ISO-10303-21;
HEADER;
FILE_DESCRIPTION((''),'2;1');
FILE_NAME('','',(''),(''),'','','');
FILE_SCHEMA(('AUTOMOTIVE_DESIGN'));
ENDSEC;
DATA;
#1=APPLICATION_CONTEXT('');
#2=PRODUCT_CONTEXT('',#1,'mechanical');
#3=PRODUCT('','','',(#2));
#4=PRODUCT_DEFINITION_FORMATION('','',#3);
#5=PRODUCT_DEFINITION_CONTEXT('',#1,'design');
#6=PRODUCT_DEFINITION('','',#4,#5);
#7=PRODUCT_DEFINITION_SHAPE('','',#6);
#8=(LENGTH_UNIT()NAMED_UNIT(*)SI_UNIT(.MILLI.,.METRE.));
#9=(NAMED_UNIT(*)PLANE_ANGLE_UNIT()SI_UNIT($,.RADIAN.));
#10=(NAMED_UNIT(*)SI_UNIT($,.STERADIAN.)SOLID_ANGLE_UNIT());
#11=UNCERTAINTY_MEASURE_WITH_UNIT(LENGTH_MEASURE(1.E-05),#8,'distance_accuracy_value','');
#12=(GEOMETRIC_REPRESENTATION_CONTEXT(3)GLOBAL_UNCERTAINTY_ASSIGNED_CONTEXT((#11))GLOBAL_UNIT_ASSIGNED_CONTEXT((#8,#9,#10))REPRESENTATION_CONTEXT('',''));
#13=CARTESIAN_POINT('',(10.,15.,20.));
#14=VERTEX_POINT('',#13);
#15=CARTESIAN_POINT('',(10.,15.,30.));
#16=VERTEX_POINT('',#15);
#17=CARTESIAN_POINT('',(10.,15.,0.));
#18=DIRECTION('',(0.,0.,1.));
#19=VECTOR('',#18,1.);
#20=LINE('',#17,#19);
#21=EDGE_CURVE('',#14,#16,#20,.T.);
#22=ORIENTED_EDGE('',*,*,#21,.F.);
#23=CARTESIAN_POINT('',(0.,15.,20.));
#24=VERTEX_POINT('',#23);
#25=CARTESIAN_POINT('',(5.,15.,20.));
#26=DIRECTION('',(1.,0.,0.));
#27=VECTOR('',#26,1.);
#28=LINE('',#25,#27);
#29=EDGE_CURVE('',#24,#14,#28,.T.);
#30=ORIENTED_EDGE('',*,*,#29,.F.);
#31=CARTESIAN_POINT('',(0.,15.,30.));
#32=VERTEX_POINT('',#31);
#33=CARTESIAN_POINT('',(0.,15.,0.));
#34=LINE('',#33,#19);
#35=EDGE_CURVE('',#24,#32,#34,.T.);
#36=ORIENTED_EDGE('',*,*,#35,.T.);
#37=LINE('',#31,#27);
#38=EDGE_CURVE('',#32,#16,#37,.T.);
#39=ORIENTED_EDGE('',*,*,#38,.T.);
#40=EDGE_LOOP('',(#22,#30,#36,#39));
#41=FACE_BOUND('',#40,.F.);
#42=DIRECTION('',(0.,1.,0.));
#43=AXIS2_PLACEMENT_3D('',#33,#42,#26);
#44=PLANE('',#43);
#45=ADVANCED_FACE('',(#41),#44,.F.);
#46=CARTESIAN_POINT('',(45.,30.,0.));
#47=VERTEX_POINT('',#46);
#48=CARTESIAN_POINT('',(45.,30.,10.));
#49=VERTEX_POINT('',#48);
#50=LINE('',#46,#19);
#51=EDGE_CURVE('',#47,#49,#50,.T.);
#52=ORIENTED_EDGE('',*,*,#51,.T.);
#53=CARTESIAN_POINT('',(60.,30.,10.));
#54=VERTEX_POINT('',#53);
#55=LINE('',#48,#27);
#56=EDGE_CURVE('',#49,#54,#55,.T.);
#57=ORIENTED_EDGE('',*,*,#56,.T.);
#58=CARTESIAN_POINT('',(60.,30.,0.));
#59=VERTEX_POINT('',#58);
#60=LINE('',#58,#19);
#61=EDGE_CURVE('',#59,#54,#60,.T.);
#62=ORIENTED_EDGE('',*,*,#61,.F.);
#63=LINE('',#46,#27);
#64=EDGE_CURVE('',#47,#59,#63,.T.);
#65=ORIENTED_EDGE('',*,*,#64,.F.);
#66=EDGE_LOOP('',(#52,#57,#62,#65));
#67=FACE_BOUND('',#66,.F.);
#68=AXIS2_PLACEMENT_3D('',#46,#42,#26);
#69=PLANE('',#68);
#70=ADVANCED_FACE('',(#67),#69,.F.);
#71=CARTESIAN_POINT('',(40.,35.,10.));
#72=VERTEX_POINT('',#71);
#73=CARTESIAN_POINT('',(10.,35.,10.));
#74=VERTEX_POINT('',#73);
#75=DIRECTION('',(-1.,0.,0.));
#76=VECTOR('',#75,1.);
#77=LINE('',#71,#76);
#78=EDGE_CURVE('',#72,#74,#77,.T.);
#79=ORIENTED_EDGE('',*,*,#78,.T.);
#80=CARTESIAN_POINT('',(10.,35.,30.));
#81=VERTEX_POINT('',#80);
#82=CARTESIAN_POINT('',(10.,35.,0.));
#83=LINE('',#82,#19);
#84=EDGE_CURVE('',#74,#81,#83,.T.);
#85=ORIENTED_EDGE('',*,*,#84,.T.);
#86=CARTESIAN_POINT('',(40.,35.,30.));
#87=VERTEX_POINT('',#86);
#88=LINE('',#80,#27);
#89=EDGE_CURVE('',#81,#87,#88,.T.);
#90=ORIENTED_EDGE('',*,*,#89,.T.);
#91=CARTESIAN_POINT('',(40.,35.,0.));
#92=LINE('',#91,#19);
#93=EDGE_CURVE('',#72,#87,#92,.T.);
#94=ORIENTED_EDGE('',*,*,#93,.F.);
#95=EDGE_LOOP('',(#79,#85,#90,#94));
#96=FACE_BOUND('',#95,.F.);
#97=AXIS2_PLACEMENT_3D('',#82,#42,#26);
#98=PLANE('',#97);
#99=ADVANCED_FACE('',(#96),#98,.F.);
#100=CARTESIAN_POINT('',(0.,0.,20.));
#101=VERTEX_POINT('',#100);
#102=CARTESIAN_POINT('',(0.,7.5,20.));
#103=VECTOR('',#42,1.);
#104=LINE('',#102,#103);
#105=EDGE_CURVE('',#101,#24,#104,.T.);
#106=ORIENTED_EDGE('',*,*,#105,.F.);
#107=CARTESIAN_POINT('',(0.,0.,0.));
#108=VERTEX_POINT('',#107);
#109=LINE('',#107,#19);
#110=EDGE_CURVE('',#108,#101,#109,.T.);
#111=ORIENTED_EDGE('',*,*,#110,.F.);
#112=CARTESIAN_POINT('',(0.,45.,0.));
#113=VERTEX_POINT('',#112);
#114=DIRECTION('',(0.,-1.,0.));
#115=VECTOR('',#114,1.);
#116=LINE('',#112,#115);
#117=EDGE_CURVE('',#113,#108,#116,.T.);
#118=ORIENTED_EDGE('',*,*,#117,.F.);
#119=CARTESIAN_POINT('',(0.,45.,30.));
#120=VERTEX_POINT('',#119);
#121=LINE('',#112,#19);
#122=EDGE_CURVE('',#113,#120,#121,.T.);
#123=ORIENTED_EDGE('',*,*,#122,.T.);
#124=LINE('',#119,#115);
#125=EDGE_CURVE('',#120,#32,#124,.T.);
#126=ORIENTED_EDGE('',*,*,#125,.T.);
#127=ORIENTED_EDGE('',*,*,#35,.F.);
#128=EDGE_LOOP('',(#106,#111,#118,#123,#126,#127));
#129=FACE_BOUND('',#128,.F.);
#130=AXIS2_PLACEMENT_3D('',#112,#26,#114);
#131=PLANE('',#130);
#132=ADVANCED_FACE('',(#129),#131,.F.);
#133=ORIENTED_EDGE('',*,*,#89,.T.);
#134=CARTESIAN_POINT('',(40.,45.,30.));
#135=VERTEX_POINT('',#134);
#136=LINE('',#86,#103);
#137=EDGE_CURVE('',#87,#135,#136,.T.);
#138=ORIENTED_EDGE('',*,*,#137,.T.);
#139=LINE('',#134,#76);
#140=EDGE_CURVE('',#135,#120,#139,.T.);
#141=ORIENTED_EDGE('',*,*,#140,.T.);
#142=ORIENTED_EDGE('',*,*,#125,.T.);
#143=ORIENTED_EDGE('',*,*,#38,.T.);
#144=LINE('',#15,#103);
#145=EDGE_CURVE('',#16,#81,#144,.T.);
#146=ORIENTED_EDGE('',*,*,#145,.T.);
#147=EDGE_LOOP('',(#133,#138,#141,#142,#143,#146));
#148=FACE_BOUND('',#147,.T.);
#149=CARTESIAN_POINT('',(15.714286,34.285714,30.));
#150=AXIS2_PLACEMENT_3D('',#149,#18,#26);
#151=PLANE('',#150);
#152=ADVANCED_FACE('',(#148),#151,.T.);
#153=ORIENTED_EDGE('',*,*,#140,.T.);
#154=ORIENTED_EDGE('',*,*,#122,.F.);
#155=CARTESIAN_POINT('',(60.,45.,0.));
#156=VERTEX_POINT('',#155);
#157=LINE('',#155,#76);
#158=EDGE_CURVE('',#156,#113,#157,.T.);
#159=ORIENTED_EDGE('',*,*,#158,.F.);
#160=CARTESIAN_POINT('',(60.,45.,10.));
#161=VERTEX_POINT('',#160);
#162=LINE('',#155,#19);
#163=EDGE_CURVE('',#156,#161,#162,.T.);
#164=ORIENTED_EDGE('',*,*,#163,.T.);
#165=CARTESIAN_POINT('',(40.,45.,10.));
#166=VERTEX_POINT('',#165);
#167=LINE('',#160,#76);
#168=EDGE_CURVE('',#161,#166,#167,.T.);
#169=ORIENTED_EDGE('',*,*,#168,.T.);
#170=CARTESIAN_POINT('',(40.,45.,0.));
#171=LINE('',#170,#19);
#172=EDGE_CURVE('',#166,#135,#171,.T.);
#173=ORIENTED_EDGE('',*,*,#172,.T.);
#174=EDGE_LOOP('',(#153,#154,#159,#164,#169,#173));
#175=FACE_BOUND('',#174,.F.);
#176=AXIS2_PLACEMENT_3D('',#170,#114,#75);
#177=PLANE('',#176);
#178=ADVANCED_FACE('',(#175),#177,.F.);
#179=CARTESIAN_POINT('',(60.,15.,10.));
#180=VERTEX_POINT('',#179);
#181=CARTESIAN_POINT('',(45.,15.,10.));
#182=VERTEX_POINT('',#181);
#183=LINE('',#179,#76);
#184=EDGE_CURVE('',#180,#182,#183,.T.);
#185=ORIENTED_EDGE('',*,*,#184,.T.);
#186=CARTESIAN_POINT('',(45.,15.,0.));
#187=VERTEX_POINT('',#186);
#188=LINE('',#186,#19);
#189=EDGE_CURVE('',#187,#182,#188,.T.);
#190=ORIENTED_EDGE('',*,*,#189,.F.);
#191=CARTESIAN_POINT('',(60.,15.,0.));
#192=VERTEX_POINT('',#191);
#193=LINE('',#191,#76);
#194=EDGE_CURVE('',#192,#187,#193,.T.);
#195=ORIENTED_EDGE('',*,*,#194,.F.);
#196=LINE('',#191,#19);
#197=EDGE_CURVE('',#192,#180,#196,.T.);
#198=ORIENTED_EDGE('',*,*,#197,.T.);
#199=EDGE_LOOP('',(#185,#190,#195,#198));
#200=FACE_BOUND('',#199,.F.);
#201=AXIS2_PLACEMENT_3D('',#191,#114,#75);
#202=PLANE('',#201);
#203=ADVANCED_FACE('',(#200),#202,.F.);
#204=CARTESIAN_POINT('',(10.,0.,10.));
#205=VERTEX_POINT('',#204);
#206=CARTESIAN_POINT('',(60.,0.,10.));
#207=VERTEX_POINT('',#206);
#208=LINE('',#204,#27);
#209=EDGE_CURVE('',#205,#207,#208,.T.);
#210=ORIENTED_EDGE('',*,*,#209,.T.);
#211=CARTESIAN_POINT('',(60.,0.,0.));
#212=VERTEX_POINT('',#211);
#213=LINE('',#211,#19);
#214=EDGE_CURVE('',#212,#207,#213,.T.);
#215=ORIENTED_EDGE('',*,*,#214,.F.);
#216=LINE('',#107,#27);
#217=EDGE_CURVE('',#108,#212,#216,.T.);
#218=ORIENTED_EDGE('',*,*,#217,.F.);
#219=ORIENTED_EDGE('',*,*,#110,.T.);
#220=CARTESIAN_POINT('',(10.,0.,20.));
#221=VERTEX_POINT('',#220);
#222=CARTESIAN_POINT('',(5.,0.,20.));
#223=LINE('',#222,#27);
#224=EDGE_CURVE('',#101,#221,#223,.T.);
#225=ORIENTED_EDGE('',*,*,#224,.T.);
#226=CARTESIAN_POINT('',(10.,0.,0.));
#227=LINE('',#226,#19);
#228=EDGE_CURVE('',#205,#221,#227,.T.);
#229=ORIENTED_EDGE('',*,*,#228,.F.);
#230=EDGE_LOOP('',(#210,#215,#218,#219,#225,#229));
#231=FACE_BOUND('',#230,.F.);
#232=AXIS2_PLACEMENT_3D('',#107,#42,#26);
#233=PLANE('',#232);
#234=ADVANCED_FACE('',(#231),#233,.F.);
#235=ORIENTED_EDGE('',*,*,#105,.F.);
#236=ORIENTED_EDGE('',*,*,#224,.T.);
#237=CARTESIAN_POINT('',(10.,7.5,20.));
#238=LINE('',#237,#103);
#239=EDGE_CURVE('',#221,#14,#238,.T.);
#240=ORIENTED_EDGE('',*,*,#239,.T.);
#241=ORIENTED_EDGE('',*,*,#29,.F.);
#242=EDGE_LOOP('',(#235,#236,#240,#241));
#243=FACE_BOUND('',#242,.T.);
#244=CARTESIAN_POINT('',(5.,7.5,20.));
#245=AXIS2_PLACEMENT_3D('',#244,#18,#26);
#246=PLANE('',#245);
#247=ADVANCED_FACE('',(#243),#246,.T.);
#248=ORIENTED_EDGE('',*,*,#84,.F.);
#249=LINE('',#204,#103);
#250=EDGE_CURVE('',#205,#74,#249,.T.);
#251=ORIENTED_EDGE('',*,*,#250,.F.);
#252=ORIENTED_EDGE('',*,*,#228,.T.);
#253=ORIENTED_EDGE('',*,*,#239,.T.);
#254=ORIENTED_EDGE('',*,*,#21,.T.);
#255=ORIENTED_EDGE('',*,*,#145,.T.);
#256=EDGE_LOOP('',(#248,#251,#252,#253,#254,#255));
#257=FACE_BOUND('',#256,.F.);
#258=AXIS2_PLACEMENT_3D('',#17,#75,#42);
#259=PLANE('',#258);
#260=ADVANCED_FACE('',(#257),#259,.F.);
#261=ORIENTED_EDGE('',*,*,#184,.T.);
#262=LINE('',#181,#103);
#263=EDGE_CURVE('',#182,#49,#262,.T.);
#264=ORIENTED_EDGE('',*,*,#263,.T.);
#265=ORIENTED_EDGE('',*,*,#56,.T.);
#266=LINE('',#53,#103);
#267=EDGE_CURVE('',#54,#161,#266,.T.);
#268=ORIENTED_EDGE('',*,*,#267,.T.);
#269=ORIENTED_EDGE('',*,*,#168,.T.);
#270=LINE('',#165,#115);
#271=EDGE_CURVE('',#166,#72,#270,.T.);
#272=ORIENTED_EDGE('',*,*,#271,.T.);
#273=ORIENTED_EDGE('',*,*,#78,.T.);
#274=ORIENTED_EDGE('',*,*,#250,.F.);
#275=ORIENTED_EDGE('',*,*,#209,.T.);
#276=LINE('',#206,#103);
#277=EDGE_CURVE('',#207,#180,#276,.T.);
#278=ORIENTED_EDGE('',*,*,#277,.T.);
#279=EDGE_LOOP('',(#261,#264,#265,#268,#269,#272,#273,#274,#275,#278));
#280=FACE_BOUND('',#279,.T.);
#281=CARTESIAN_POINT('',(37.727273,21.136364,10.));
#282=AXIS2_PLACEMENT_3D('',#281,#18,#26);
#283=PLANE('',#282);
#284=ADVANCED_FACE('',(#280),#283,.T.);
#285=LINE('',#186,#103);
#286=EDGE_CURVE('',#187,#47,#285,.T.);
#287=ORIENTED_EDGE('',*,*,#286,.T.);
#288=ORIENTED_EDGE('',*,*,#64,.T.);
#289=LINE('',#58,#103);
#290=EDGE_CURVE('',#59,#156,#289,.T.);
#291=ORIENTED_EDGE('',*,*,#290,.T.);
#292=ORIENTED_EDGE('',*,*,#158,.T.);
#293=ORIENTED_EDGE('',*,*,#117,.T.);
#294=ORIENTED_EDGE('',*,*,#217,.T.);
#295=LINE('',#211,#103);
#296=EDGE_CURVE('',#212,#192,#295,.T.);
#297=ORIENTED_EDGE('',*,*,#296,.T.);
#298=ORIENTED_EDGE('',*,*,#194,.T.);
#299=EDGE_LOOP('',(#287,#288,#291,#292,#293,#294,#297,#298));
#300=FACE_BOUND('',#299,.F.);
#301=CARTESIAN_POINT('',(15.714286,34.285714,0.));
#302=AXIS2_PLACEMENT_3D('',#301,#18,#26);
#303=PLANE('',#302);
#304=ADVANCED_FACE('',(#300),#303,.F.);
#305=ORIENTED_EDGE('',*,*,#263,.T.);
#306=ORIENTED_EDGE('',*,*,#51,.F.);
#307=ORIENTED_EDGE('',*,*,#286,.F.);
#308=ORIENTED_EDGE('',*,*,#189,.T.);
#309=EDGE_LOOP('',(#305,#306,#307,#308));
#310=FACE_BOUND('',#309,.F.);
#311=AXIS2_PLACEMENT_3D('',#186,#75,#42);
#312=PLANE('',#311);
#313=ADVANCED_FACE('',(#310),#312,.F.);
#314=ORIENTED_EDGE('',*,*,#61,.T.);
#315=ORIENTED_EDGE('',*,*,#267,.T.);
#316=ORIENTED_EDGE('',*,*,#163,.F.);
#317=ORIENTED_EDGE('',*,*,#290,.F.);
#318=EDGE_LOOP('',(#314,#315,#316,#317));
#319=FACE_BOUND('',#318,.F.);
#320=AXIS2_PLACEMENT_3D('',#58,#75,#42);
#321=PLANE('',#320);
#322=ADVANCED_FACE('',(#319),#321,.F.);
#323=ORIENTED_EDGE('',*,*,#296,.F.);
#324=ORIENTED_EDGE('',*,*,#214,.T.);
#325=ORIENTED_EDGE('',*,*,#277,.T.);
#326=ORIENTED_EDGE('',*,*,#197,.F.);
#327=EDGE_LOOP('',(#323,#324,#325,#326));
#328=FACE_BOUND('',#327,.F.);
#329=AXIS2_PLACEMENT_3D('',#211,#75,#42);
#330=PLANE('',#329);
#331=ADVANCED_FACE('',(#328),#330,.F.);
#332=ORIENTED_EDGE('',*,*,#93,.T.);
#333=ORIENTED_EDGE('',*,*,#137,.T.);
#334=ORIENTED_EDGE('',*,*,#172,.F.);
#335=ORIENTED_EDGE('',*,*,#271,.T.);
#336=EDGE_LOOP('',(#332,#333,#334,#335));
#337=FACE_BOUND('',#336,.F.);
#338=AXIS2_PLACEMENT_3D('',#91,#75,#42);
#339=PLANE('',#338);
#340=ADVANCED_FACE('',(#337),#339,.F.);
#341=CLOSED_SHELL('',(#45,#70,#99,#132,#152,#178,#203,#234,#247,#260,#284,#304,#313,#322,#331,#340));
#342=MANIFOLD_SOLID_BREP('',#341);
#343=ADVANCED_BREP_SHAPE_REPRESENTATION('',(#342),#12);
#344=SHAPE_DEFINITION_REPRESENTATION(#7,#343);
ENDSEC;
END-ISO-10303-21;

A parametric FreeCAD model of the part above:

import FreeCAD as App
import Part
import Sketcher
from FreeCAD import Vector


def add_polygon(sketch, points):
    """Adds a closed chain of lines whose ends are joined by coincident constraints."""
    first, n = sketch.GeometryCount, len(points)
    for a, b in zip(points, points[1:] + points[:1]):
        sketch.addGeometry(Part.LineSegment(App.Vector(*a, 0), App.Vector(*b, 0)), False)
    for i in range(n):
        sketch.addConstraint(Sketcher.Constraint("Coincident", first + i, 2, first + (i + 1) % n, 1))

doc = App.newDocument("Part")
body = doc.addObject("PartDesign::Body", "Body")

# Sketch on XY plane
sketch1 = body.newObject("Sketcher::SketchObject", "Sketch")
sketch1.AttachmentSupport = (doc.getObject("XY_Plane"), [""])
sketch1.MapMode = "FlatFace"
add_polygon(sketch1, [(10, 0), (60, 0), (60, 15), (45, 15), (45, 30), (60, 30), (60, 45), (40, 45), (40, 35), (10, 35)])  # lines 0-9
sketch1.addConstraint([
    Sketcher.Constraint("Horizontal", 0),
    Sketcher.Constraint("Vertical", 1),
    Sketcher.Constraint("Horizontal", 2),
    Sketcher.Constraint("Vertical", 3),
    Sketcher.Constraint("Horizontal", 4),
    Sketcher.Constraint("Vertical", 5),
    Sketcher.Constraint("Horizontal", 6),
    Sketcher.Constraint("Vertical", 7),
    Sketcher.Constraint("Horizontal", 8),
    Sketcher.Constraint("Vertical", 9),
    Sketcher.Constraint("PointOnObject", 0, 2, -1),
    Sketcher.Constraint("Vertical", 1, 2, 4, 2),
    Sketcher.Constraint("Equal", 4, 1),
    Sketcher.Constraint("Equal", 1, 3),
    Sketcher.Constraint("Equal", 3, 5),
    Sketcher.Constraint("DistanceX", 0, 1, 0, 2, 50.0),
    Sketcher.Constraint("DistanceX", 2, 2, 2, 1, 15.0),
    Sketcher.Constraint("DistanceX", 6, 2, 6, 1, 20.0),
    Sketcher.Constraint("DistanceY", 7, 2, 7, 1, 10.0),
    Sketcher.Constraint("DistanceX", -1, 1, 0, 2, 60.0),
])
pad1 = body.newObject("PartDesign::Pad", "Pad")
pad1.Profile = sketch1
pad1.Length = 10

# Sketch on XY plane
sketch2 = body.newObject("Sketcher::SketchObject", "Sketch001")
sketch2.AttachmentSupport = (doc.getObject("XY_Plane"), [""])
sketch2.MapMode = "FlatFace"
add_polygon(sketch2, [(0, 15), (0, 0), (10, 0), (10, 15)])  # lines 0-3
sketch2.addConstraint([
    Sketcher.Constraint("Vertical", 0),
    Sketcher.Constraint("Horizontal", 1),
    Sketcher.Constraint("Vertical", 2),
    Sketcher.Constraint("Horizontal", 3),
    Sketcher.Constraint("Coincident", 0, 2, -1, 1),
    Sketcher.Constraint("DistanceX", 1, 1, 1, 2, 10.0),
    Sketcher.Constraint("DistanceY", 0, 2, 0, 1, 15.0),
])
pad2 = body.newObject("PartDesign::Pad", "Pad001")
pad2.Profile = sketch2
pad2.Length = 20

# Sketch on XY plane
sketch3 = body.newObject("Sketcher::SketchObject", "Sketch002")
sketch3.AttachmentSupport = (doc.getObject("XY_Plane"), [""])
sketch3.MapMode = "FlatFace"
add_polygon(sketch3, [(0, 45), (0, 15), (10, 15), (10, 35), (40, 35), (40, 45)])  # lines 0-5
sketch3.addConstraint([
    Sketcher.Constraint("Vertical", 0),
    Sketcher.Constraint("Horizontal", 1),
    Sketcher.Constraint("Vertical", 2),
    Sketcher.Constraint("Horizontal", 3),
    Sketcher.Constraint("Vertical", 4),
    Sketcher.Constraint("Horizontal", 5),
    Sketcher.Constraint("PointOnObject", 0, 2, -2),
    Sketcher.Constraint("Equal", 3, 0),
    Sketcher.Constraint("Equal", 1, 4),
    Sketcher.Constraint("DistanceX", 1, 1, 1, 2, 10.0),
    Sketcher.Constraint("DistanceX", 3, 1, 3, 2, 30.0),
    Sketcher.Constraint("DistanceY", -1, 1, 0, 2, 15.0),
])
pad3 = body.newObject("PartDesign::Pad", "Pad002")
pad3.Profile = sketch3
pad3.Length = 30

doc.recompute()
